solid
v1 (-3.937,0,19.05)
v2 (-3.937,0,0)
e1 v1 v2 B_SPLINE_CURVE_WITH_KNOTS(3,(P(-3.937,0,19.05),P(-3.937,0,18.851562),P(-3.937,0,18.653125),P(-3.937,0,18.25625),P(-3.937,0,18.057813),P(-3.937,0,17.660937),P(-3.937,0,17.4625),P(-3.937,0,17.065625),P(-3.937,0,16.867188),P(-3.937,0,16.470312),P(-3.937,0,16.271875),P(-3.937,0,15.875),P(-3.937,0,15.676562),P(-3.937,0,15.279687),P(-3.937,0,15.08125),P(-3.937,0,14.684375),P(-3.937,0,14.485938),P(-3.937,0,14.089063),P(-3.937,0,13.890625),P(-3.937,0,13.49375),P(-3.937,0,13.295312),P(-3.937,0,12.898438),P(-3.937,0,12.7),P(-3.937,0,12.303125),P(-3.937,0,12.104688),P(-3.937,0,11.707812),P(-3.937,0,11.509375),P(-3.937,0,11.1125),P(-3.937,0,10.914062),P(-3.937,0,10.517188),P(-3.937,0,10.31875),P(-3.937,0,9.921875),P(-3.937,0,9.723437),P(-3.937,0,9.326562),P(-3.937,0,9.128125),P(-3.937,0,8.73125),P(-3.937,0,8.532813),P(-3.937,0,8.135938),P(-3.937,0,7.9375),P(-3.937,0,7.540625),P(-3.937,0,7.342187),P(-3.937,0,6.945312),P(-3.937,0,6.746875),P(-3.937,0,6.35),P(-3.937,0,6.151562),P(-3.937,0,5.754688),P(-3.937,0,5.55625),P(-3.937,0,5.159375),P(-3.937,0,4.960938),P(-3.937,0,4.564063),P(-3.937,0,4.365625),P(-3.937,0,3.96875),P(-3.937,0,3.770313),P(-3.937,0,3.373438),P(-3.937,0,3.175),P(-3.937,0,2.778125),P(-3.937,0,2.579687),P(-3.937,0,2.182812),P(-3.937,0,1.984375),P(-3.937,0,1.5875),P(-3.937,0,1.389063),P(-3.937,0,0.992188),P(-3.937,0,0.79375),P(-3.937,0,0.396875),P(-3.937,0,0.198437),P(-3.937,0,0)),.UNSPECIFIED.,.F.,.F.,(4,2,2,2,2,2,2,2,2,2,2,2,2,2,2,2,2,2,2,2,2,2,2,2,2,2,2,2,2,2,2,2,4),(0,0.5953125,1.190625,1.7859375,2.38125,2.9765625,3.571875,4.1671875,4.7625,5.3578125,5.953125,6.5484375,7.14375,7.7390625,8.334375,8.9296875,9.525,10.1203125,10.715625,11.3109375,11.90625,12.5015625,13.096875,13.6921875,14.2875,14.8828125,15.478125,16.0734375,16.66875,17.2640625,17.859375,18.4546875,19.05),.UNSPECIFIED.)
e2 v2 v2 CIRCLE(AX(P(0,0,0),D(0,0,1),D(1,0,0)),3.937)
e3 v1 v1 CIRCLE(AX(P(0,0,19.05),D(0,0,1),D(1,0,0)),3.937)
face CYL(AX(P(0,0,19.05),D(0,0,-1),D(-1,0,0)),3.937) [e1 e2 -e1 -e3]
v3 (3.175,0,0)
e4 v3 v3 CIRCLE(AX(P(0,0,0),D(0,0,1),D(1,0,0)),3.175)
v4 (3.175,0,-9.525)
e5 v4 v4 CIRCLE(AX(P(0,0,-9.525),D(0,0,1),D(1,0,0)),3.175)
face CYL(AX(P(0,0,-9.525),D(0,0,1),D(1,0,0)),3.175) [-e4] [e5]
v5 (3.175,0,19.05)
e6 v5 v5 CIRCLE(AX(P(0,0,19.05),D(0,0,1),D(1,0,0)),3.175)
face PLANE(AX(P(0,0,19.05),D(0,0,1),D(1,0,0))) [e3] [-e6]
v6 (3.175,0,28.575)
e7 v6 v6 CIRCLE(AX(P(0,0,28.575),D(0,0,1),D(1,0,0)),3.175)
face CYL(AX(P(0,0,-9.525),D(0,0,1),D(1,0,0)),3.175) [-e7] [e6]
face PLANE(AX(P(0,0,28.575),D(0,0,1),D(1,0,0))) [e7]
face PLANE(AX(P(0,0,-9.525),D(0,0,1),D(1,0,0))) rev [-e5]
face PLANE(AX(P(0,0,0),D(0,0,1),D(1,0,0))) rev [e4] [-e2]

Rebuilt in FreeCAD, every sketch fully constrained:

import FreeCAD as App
import Part
import Sketcher

V = App.Vector
Q = App.Units.Quantity

doc = App.newDocument("Part")
params = doc.addObject("Spreadsheet::Sheet", "Params")
for row, (alias, value) in enumerate([
    ("sketch1_diameter", "0.31 in"),
    ("pad1_length", "0.75 in"),
    ("sketch2_diameter", "0.25 in"),
    ("pad2_length", "0.375 in"),
    ("pad2_length2", "1.125 in"),
], start=1):
    params.set(f"A{row}", alias)
    params.set(f"B{row}", "=" + value)
    params.setAlias(f"B{row}", alias)

body = doc.addObject("PartDesign::Body", "Body")

# Sketch on XY plane
sketch1 = doc.addObject("Sketcher::SketchObject", "Sketch")
body.addObject(sketch1)
sketch1.AttachmentSupport = (doc.XY_Plane, [""])
sketch1.MapMode = "FlatFace"
sketch1.addGeometry(Part.Circle(V(0, 0, 0), V(0, 0, 1), 3.9), False)
sketch1.addConstraint(Sketcher.Constraint("Coincident", 0, 3, -1, 1))
sketch1.addConstraint(Sketcher.Constraint("Diameter", 0, Q("0.31 in")))
sketch1.setExpression("Constraints[1]", "Params.sketch1_diameter")
pad1 = doc.addObject("PartDesign::Pad", "Pad")
body.addObject(pad1)
pad1.Profile = sketch1
pad1.setExpression("Length", "Params.pad1_length")

# Sketch on XY plane
sketch2 = doc.addObject("Sketcher::SketchObject", "Sketch001")
body.addObject(sketch2)
sketch2.AttachmentSupport = (doc.XY_Plane, [""])
sketch2.MapMode = "FlatFace"
sketch2.AttachmentOffset = App.Placement(V(0, 0, 0.75 * 25.4), App.Rotation())
sketch2.addGeometry(Part.Circle(V(0, 0, 0), V(0, 0, 1), 3.2), False)
sketch2.addConstraint(Sketcher.Constraint("Coincident", 0, 3, -1, 1))
sketch2.addConstraint(Sketcher.Constraint("Diameter", 0, Q("0.25 in")))
sketch2.setExpression("Constraints[1]", "Params.sketch2_diameter")
pad2 = doc.addObject("PartDesign::Pad", "Pad001")
body.addObject(pad2)
pad2.Profile = sketch2
pad2.Type = "TwoLengths"
pad2.setExpression("Length", "Params.pad2_length")
pad2.setExpression("Length2", "Params.pad2_length2")

doc.recompute()
